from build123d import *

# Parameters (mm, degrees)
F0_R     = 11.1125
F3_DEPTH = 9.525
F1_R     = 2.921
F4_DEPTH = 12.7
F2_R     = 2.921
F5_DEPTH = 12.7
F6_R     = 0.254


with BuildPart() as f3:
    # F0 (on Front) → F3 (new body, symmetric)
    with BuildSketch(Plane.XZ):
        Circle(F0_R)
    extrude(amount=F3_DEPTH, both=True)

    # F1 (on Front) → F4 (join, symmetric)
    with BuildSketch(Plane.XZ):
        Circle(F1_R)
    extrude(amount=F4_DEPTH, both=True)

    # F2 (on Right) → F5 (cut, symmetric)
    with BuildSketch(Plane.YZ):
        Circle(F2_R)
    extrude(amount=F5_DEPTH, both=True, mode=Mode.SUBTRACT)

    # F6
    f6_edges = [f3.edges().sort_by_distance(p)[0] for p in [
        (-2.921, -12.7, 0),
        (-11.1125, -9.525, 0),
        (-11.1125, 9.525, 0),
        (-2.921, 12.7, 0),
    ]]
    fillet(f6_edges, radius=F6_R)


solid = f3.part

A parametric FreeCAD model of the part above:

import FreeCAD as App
import Part
import Sketcher

V = App.Vector
Q = App.Units.Quantity


def edges_at(feature, points):
    """Names of the edges that pass closest to the given points."""
    edges = feature.Shape.Edges
    near = lambda p: min(range(len(edges)), key=lambda i: edges[i].distToShape(Part.Vertex(*p))[0])
    return sorted({f"Edge{near(p) + 1}" for p in points})

doc = App.newDocument("Part")
body = doc.addObject("PartDesign::Body", "Body")

# Sketch on XZ plane
sketch1 = body.newObject("Sketcher::SketchObject", "Sketch")
sketch1.AttachmentSupport = (doc.getObject("XZ_Plane"), [""])
sketch1.MapMode = "FlatFace"
sketch1.addGeometry(Part.Circle(V(0, 0, 0), V(0, 0, 1), 11.1125), False)
sketch1.addConstraint([
    Sketcher.Constraint("Coincident", 0, 3, -1, 1),
    Sketcher.Constraint("Diameter", 0, Q("0.875 in")),
])
pad1 = body.newObject("PartDesign::Pad", "Pad")
pad1.Profile = sketch1
pad1.Length = Q("0.75 in")
pad1.Midplane = True

# Sketch on XZ plane
sketch2 = body.newObject("Sketcher::SketchObject", "Sketch001")
sketch2.AttachmentSupport = (doc.getObject("XZ_Plane"), [""])
sketch2.MapMode = "FlatFace"
sketch2.addGeometry(Part.Circle(V(0, 0, 0), V(0, 0, 1), 2.921), False)
sketch2.addConstraint([
    Sketcher.Constraint("Coincident", 0, 3, -1, 1),
    Sketcher.Constraint("Diameter", 0, Q("0.23 in")),
])
pad2 = body.newObject("PartDesign::Pad", "Pad001")
pad2.Profile = sketch2
pad2.Length = Q("1 in")
pad2.Midplane = True

# Sketch on YZ plane
sketch3 = body.newObject("Sketcher::SketchObject", "Sketch002")
sketch3.AttachmentSupport = (doc.getObject("YZ_Plane"), [""])
sketch3.MapMode = "FlatFace"
sketch3.addGeometry(Part.Circle(V(0, 0, 0), V(0, 0, 1), 2.921), False)
sketch3.addConstraint([
    Sketcher.Constraint("Coincident", 0, 3, -1, 1),
    Sketcher.Constraint("Diameter", 0, Q("0.23 in")),
])
pocket1 = body.newObject("PartDesign::Pocket", "Pocket")
pocket1.Profile = sketch3
pocket1.Length = Q("1 in")
pocket1.Midplane = True
doc.recompute()

fillet = body.newObject("PartDesign::Fillet", "Fillet")
fillet.Base = (pocket1, edges_at(pocket1, [
    (-2.921, -12.7, 0),
    (-11.113, -9.525, 0),
    (-11.113, 9.525, 0),
    (-2.921, 12.7, 0),
]))
fillet.Radius = Q("0.01 in")

doc.recompute()
